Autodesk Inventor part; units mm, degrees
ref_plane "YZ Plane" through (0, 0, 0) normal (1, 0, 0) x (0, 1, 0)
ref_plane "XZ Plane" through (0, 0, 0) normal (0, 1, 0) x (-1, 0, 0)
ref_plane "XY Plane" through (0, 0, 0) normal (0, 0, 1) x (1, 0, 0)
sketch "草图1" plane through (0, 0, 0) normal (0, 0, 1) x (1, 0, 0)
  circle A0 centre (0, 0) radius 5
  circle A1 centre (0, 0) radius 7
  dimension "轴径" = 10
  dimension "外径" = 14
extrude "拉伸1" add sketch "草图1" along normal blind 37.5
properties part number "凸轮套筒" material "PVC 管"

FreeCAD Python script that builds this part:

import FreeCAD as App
import Part
import Sketcher

V = App.Vector

doc = App.newDocument("Part")
body = doc.addObject("PartDesign::Body", "Body")

# Sketch on XY plane
sketch1 = body.newObject("Sketcher::SketchObject", "Sketch")
sketch1.AttachmentSupport = (doc.getObject("XY_Plane"), [""])
sketch1.MapMode = "FlatFace"
sketch1.addGeometry([
    Part.Circle(V(0, 0, 0), V(0, 0, 1), 7),
    Part.Circle(V(0, 0, 0), V(0, 0, 1), 5),
], False)
sketch1.addConstraint([
    Sketcher.Constraint("Coincident", 0, 3, -1, 1),
    Sketcher.Constraint("Coincident", 1, 3, -1, 1),
    Sketcher.Constraint("Diameter", 0, 14.0),
    Sketcher.Constraint("Diameter", 1, 10.0),
])
pad1 = body.newObject("PartDesign::Pad", "Pad")
pad1.Profile = sketch1
pad1.Length = 37.5

doc.recompute()
